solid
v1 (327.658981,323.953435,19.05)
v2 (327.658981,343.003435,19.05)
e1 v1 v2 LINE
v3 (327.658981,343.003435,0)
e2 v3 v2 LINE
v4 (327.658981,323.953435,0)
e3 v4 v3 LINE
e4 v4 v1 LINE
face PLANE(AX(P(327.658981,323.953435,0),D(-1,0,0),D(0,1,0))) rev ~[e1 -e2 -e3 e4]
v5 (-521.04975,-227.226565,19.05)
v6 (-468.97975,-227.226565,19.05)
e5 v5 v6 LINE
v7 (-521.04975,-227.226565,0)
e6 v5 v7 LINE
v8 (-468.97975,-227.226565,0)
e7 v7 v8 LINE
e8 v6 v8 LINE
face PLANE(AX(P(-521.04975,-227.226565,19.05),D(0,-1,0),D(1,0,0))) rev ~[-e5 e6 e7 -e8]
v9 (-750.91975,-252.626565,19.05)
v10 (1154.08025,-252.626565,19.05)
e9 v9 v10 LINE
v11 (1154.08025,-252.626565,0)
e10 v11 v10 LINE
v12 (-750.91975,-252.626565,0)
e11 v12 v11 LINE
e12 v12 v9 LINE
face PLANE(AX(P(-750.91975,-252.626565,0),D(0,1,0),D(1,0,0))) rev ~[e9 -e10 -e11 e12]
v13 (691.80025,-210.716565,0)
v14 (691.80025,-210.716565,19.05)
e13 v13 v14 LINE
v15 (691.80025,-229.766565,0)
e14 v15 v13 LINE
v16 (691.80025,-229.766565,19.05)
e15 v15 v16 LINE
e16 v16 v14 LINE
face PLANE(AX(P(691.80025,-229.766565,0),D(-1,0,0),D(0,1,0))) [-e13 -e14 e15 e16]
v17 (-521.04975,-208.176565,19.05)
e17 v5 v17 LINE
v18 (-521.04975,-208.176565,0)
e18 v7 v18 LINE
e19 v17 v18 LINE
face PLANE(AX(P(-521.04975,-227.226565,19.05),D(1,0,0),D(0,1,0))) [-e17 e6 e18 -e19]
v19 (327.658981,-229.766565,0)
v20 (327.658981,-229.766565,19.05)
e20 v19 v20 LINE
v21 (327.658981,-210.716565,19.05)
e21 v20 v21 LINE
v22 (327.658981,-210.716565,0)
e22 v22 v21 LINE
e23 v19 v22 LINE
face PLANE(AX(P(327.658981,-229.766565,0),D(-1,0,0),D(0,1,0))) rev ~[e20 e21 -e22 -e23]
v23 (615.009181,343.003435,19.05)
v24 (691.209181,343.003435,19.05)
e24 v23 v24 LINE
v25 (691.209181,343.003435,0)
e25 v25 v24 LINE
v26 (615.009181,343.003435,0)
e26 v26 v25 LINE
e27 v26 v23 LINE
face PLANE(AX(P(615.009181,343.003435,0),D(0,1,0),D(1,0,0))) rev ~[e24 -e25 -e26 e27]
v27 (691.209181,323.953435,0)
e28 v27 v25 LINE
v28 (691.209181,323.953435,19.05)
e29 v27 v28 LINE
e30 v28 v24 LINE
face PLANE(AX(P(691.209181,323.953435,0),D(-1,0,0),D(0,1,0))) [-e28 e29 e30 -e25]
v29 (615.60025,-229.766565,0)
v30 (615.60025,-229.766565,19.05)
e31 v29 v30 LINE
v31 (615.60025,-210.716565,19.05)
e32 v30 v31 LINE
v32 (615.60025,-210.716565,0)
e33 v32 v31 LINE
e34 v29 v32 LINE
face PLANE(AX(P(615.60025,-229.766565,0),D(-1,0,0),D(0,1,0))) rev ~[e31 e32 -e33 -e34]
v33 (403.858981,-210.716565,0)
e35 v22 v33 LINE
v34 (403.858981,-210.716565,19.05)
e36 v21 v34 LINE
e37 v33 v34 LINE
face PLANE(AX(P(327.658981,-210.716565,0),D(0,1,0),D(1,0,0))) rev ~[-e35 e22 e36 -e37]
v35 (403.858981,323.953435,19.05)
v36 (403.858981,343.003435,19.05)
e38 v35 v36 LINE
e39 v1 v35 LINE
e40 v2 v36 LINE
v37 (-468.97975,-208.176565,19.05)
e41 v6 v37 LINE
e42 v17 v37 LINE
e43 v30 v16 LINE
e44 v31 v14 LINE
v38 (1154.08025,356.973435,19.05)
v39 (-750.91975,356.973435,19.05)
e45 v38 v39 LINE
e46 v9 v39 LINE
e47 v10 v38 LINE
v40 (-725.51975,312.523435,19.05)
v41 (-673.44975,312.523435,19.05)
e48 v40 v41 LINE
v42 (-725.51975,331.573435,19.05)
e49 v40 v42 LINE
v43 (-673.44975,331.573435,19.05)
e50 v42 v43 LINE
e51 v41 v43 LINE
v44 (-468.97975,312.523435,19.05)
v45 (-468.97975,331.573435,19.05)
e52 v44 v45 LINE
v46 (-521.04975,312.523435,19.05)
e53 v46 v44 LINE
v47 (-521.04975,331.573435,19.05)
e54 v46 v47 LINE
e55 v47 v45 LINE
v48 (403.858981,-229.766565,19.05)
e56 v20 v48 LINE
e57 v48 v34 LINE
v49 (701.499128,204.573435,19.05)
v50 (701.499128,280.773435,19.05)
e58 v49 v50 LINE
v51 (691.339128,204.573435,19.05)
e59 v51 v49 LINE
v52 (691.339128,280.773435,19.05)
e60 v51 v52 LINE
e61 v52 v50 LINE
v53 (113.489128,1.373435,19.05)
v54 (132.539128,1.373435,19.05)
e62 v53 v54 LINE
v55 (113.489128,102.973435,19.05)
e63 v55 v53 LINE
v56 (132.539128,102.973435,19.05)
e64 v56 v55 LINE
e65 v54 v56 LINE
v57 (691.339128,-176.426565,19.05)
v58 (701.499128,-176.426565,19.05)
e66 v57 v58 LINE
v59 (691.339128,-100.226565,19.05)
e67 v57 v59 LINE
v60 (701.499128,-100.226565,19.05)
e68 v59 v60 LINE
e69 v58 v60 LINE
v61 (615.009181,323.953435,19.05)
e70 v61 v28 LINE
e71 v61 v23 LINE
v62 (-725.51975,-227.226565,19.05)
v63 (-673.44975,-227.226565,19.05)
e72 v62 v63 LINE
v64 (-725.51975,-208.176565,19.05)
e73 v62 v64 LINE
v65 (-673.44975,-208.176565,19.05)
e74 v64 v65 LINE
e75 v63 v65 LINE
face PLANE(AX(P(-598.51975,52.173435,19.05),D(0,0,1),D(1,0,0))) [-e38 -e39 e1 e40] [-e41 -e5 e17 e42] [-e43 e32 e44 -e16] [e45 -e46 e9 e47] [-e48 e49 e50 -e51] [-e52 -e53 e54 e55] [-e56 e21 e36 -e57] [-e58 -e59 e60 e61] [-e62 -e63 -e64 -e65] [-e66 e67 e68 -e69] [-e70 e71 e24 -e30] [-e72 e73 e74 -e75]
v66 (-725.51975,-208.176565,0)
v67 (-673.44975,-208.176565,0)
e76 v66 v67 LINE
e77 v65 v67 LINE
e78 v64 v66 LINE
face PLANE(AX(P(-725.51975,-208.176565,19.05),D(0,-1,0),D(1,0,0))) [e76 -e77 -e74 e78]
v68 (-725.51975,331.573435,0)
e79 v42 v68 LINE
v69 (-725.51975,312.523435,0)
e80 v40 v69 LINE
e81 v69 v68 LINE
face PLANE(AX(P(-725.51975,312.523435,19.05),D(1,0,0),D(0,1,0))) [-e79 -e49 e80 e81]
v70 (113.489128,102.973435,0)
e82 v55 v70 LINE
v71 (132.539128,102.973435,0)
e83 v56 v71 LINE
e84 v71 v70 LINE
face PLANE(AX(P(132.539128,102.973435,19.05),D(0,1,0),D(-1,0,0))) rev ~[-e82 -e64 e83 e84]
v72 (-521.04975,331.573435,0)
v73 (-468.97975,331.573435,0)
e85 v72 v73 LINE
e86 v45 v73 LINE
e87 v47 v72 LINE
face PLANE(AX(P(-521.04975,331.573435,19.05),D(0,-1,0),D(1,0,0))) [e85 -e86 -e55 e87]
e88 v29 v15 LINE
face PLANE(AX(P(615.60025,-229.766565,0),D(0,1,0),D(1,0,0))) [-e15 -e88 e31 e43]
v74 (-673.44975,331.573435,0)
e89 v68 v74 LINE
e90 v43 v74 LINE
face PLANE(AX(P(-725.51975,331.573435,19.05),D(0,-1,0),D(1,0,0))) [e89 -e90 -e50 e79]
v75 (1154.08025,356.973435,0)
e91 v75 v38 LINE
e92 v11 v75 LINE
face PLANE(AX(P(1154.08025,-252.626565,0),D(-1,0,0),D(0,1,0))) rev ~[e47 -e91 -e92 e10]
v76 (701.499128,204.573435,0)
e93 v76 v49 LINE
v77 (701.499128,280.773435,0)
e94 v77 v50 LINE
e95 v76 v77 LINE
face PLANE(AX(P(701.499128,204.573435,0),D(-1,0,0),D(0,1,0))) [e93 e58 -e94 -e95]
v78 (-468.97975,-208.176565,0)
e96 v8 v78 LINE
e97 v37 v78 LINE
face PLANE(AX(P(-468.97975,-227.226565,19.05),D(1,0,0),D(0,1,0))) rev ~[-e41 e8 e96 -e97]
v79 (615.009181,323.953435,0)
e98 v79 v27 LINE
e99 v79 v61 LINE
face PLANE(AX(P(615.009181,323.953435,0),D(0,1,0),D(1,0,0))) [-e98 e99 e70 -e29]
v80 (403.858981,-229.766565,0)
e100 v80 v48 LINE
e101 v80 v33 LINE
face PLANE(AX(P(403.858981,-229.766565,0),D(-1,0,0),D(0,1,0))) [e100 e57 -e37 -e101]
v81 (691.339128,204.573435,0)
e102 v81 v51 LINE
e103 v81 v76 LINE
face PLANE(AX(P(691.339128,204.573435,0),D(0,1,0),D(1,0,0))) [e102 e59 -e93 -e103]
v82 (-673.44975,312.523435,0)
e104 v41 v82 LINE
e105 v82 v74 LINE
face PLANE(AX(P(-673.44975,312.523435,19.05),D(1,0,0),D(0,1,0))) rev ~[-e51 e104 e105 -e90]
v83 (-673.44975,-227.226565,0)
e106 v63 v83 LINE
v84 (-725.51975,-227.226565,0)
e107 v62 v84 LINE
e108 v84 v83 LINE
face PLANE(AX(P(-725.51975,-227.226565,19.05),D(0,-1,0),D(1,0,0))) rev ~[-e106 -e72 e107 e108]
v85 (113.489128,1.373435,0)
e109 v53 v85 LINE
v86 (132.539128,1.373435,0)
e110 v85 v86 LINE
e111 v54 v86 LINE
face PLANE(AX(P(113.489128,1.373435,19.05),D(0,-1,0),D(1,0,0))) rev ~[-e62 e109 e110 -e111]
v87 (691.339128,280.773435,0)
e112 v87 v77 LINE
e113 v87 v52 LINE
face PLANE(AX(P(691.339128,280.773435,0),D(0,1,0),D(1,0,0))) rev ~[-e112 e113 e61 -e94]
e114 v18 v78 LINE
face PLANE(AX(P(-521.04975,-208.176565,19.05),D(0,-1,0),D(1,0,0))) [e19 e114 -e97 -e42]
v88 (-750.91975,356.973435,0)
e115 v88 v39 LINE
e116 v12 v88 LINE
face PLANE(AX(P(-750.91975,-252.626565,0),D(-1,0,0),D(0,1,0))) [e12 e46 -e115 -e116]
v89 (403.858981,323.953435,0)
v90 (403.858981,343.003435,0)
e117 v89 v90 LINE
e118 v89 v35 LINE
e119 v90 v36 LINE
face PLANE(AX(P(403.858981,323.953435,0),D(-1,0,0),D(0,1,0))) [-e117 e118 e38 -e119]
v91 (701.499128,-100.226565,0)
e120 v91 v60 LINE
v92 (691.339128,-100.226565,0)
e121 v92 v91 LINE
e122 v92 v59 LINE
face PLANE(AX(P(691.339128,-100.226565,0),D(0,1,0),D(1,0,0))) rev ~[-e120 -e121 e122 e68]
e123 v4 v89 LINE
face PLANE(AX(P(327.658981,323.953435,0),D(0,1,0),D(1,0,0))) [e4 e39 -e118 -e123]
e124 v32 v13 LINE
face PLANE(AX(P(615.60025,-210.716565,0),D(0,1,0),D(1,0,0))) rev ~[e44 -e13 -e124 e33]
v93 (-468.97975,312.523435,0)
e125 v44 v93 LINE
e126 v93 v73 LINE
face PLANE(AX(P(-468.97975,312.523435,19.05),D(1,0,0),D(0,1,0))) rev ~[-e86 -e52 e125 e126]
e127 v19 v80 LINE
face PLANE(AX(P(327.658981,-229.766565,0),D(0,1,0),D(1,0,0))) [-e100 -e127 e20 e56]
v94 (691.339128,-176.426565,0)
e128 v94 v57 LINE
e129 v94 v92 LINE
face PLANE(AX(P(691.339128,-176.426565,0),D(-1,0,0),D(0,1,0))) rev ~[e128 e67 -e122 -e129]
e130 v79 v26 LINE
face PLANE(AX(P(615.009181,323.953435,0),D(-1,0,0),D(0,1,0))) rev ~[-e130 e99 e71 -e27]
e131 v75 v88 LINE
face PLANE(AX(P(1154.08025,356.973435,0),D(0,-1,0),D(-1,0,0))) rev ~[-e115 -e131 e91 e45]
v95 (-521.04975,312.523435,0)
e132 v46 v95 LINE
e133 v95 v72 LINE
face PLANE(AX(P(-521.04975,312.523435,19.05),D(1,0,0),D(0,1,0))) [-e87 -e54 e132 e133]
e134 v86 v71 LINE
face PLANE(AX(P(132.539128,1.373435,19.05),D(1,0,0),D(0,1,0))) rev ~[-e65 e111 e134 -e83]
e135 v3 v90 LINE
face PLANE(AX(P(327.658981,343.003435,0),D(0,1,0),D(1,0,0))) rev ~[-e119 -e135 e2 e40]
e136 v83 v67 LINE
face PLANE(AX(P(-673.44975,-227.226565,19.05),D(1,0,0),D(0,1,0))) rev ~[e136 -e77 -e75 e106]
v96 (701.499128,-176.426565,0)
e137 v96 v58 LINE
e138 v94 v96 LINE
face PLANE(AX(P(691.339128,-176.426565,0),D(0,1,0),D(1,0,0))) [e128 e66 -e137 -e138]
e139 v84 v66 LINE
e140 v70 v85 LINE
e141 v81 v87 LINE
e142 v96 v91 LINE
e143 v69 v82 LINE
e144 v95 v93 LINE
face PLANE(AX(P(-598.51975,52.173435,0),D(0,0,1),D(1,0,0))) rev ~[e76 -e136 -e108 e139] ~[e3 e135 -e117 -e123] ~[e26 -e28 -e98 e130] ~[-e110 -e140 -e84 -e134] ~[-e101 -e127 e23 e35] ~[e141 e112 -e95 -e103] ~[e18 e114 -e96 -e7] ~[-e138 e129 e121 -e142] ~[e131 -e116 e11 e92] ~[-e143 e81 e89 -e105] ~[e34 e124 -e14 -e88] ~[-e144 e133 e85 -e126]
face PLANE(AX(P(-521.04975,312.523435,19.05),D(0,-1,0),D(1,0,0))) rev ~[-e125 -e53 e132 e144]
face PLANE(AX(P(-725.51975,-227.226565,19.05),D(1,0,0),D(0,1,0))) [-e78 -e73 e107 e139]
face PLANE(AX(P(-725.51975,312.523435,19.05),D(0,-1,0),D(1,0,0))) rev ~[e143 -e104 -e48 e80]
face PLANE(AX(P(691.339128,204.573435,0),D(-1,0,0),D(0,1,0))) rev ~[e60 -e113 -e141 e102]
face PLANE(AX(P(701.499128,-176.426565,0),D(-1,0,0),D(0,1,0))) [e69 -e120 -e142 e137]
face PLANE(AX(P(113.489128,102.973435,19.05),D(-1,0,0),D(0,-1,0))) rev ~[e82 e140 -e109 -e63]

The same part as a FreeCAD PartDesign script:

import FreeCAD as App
import Part
import Sketcher
from FreeCAD import Vector
Q = App.Units.Quantity


def add_polygon(sketch, points):
    """Adds a closed chain of lines whose ends are joined by coincident constraints."""
    first, n = sketch.GeometryCount, len(points)
    for a, b in zip(points, points[1:] + points[:1]):
        sketch.addGeometry(Part.LineSegment(App.Vector(*a, 0), App.Vector(*b, 0)), False)
    for i in range(n):
        sketch.addConstraint(Sketcher.Constraint("Coincident", first + i, 2, first + (i + 1) % n, 1))

doc = App.newDocument("Part")
body = doc.addObject("PartDesign::Body", "Body")

# Sketch on XY plane
sketch1 = body.newObject("Sketcher::SketchObject", "Sketch")
sketch1.AttachmentSupport = (doc.getObject("XY_Plane"), [""])
sketch1.MapMode = "FlatFace"
add_polygon(sketch1, [(-751, 357), (-751, -253), (1154, -253), (1154, 357)])  # lines 0-3
add_polygon(sketch1, [(404, -230), (328, -230), (328, -211), (404, -211)])  # lines 4-7
add_polygon(sketch1, [(692, -230), (616, -230), (616, -211), (692, -211)])  # lines 8-11
add_polygon(sketch1, [(701, -176), (691, -176), (691, -100), (701, -100)])  # lines 12-15
add_polygon(sketch1, [(404, 324), (328, 324), (328, 343), (404, 343)])  # lines 16-19
add_polygon(sketch1, [(701, 205), (691, 205), (691, 281), (701, 281)])  # lines 20-23
add_polygon(sketch1, [(691, 324), (615, 324), (615, 343), (691, 343)])  # lines 24-27
sketch1.addConstraint([
    Sketcher.Constraint("Vertical", 0),
    Sketcher.Constraint("Horizontal", 1),
    Sketcher.Constraint("Vertical", 2),
    Sketcher.Constraint("Horizontal", 3),
    Sketcher.Constraint("Horizontal", 4),
    Sketcher.Constraint("Vertical", 5),
    Sketcher.Constraint("Horizontal", 6),
    Sketcher.Constraint("Vertical", 7),
    Sketcher.Constraint("Horizontal", 8),
    Sketcher.Constraint("Vertical", 9),
    Sketcher.Constraint("Horizontal", 10),
    Sketcher.Constraint("Vertical", 11),
    Sketcher.Constraint("Horizontal", 12),
    Sketcher.Constraint("Vertical", 13),
    Sketcher.Constraint("Horizontal", 14),
    Sketcher.Constraint("Vertical", 15),
    Sketcher.Constraint("Horizontal", 16),
    Sketcher.Constraint("Vertical", 17),
    Sketcher.Constraint("Horizontal", 18),
    Sketcher.Constraint("Vertical", 19),
    Sketcher.Constraint("Horizontal", 20),
    Sketcher.Constraint("Vertical", 21),
    Sketcher.Constraint("Horizontal", 22),
    Sketcher.Constraint("Vertical", 23),
    Sketcher.Constraint("Horizontal", 24),
    Sketcher.Constraint("Vertical", 25),
    Sketcher.Constraint("Horizontal", 26),
    Sketcher.Constraint("Vertical", 27),
    Sketcher.Constraint("Horizontal", 7, 2, 8, 2),
    Sketcher.Constraint("Horizontal", 6, 2, 9, 2),
    Sketcher.Constraint("Horizontal", 19, 2, 24, 2),
    Sketcher.Constraint("Horizontal", 18, 2, 25, 2),
    Sketcher.Constraint("Vertical", 5, 2, 16, 2),
    Sketcher.Constraint("Vertical", 7, 2, 18, 2),
    Sketcher.Constraint("Vertical", 13, 2, 20, 2),
    Sketcher.Constraint("Vertical", 15, 2, 22, 2),
    Sketcher.Constraint("Equal", 6, 8),
    Sketcher.Constraint("Equal", 18, 24),
    Sketcher.Constraint("Equal", 26, 13),
    Sketcher.Constraint("Equal", 11, 17),
    Sketcher.Constraint("Equal", 15, 21),
    Sketcher.Constraint("DistanceX", 1, 1, 1, 2, Q("75 in")),
    Sketcher.Constraint("DistanceX", 4, 2, 4, 1, Q("3 in")),
    Sketcher.Constraint("DistanceY", 0, 2, 0, 1, Q("24 in")),
    Sketcher.Constraint("DistanceX", 12, 2, 12, 1, Q("0.4 in")),
    Sketcher.Constraint("DistanceY", 13, 2, 20, 2, Q("12 in")),
    Sketcher.Constraint("DistanceY", 5, 1, 5, 2, Q("0.75 in")),
    Sketcher.Constraint("DistanceY", 1, 2, 4, 2, Q("0.9 in")),
    Sketcher.Constraint("DistanceX", 8, 2, 1, 2, Q("21.2 in")),
    Sketcher.Constraint("DistanceY", 11, 2, 12, 2, Q("2.1 in")),
    Sketcher.Constraint("DistanceY", 4, 2, 16, 2, Q("21.8 in")),
    Sketcher.Constraint("DistanceX", 19, 2, 24, 2, Q("8.313 in")),
    Sketcher.Constraint("DistanceX", 0, 2, -1, 1, 750.91975),
    Sketcher.Constraint("DistanceX", -1, 1, 4, 2, 327.658981),
    Sketcher.Constraint("DistanceX", -1, 1, 12, 2, 691.339128),
    Sketcher.Constraint("DistanceY", 0, 2, -1, 1, 252.626565),
])
pad1 = body.newObject("PartDesign::Pad", "Pad")
pad1.Profile = sketch1
pad1.Length = Q("0.75 in")

# Sketch on XY plane
sketch2 = body.newObject("Sketcher::SketchObject", "Sketch001")
sketch2.AttachmentSupport = (doc.getObject("XY_Plane"), [""])
sketch2.MapMode = "FlatFace"
sketch2.AttachmentOffset = App.Placement(Vector(0, 0, 0.75 * 25.4), App.Rotation())
add_polygon(sketch2, [(133, 1), (133, 103), (113, 103), (113, 1)])  # lines 0-3
sketch2.addConstraint([
    Sketcher.Constraint("Vertical", 0),
    Sketcher.Constraint("Horizontal", 1),
    Sketcher.Constraint("Vertical", 2),
    Sketcher.Constraint("Horizontal", 3),
    Sketcher.Constraint("DistanceY", 0, 1, 0, 2, Q("4 in")),
    Sketcher.Constraint("DistanceX", 1, 2, 1, 1, Q("0.75 in")),
    Sketcher.Constraint("DistanceX", -1, 1, 0, 2, 132.539128),
    Sketcher.Constraint("DistanceY", -1, 1, 0, 2, 102.973435),
])
pocket1 = body.newObject("PartDesign::Pocket", "Pocket")
pocket1.Profile = sketch2
pocket1.Length = Q("0.75 in")

# Sketch on XY plane
sketch3 = body.newObject("Sketcher::SketchObject", "Sketch002")
sketch3.AttachmentSupport = (doc.getObject("XY_Plane"), [""])
sketch3.MapMode = "FlatFace"
sketch3.AttachmentOffset = App.Placement(Vector(0, 0, 0.75 * 25.4), App.Rotation())
add_polygon(sketch3, [(-726, -208), (-726, -227), (-673, -227), (-673, -208)])  # lines 0-3
add_polygon(sketch3, [(-521, -208), (-521, -227), (-469, -227), (-469, -208)])  # lines 4-7
add_polygon(sketch3, [(-521, 332), (-521, 313), (-469, 313), (-469, 332)])  # lines 8-11
add_polygon(sketch3, [(-726, 332), (-726, 313), (-673, 313), (-673, 332)])  # lines 12-15
sketch3.addConstraint([
    Sketcher.Constraint("Vertical", 0),
    Sketcher.Constraint("Horizontal", 1),
    Sketcher.Constraint("Vertical", 2),
    Sketcher.Constraint("Horizontal", 3),
    Sketcher.Constraint("Vertical", 4),
    Sketcher.Constraint("Horizontal", 5),
    Sketcher.Constraint("Vertical", 6),
    Sketcher.Constraint("Horizontal", 7),
    Sketcher.Constraint("Vertical", 8),
    Sketcher.Constraint("Horizontal", 9),
    Sketcher.Constraint("Vertical", 10),
    Sketcher.Constraint("Horizontal", 11),
    Sketcher.Constraint("Vertical", 12),
    Sketcher.Constraint("Horizontal", 13),
    Sketcher.Constraint("Vertical", 14),
    Sketcher.Constraint("Horizontal", 15),
    Sketcher.Constraint("Horizontal", 1, 2, 4, 2),
    Sketcher.Constraint("Horizontal", 3, 2, 6, 2),
    Sketcher.Constraint("Horizontal", 9, 2, 12, 2),
    Sketcher.Constraint("Horizontal", 11, 2, 14, 2),
    Sketcher.Constraint("Vertical", 7, 2, 8, 2),
    Sketcher.Constraint("Vertical", 6, 2, 9, 2),
    Sketcher.Constraint("Vertical", 3, 2, 12, 2),
    Sketcher.Constraint("Vertical", 2, 2, 13, 2),
    Sketcher.Constraint("Equal", 3, 5),
    Sketcher.Constraint("Equal", 6, 8),
    Sketcher.Constraint("DistanceX", 1, 2, 4, 2, Q("6 in")),
    Sketcher.Constraint("DistanceY", 5, 2, 10, 2, Q("22 in")),
    Sketcher.Constraint("DistanceX", 1, 1, 1, 2, Q("2.05 in")),
    Sketcher.Constraint("DistanceY", 0, 2, 0, 1, Q("0.75 in")),
    Sketcher.Constraint("DistanceX", 0, 2, -1, 1, 725.51975),
    Sketcher.Constraint("DistanceY", 0, 2, -1, 1, 227.226565),
])
pocket2 = body.newObject("PartDesign::Pocket", "Pocket001")
pocket2.Profile = sketch3
pocket2.Length = Q("0.75 in")

doc.recompute()
